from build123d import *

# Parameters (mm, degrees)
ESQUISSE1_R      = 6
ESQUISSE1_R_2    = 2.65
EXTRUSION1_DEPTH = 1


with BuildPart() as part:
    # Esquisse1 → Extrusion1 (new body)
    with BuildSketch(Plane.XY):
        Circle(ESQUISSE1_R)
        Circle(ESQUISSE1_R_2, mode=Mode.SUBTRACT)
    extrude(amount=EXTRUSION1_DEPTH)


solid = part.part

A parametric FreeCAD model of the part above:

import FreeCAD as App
import Part
import Sketcher
from FreeCAD import Vector

doc = App.newDocument("Part")
body = doc.addObject("PartDesign::Body", "Body")

# Sketch on XY plane
sketch1 = body.newObject("Sketcher::SketchObject", "Sketch")
sketch1.AttachmentSupport = (doc.getObject("XY_Plane"), [""])
sketch1.MapMode = "FlatFace"
sketch1.addGeometry([
    Part.Circle(Vector(0, 0, 0), Vector(0, 0, 1), 6),
    Part.Circle(Vector(0, 0, 0), Vector(0, 0, 1), 2.65),
], False)
sketch1.addConstraint([
    Sketcher.Constraint("Coincident", 0, 3, -1, 1),
    Sketcher.Constraint("Coincident", 1, 3, -1, 1),
    Sketcher.Constraint("Diameter", 0, 12.0),
    Sketcher.Constraint("Diameter", 1, 5.3),
])
pad1 = body.newObject("PartDesign::Pad", "Pad")
pad1.Profile = sketch1
pad1.Length = 1

doc.recompute()
